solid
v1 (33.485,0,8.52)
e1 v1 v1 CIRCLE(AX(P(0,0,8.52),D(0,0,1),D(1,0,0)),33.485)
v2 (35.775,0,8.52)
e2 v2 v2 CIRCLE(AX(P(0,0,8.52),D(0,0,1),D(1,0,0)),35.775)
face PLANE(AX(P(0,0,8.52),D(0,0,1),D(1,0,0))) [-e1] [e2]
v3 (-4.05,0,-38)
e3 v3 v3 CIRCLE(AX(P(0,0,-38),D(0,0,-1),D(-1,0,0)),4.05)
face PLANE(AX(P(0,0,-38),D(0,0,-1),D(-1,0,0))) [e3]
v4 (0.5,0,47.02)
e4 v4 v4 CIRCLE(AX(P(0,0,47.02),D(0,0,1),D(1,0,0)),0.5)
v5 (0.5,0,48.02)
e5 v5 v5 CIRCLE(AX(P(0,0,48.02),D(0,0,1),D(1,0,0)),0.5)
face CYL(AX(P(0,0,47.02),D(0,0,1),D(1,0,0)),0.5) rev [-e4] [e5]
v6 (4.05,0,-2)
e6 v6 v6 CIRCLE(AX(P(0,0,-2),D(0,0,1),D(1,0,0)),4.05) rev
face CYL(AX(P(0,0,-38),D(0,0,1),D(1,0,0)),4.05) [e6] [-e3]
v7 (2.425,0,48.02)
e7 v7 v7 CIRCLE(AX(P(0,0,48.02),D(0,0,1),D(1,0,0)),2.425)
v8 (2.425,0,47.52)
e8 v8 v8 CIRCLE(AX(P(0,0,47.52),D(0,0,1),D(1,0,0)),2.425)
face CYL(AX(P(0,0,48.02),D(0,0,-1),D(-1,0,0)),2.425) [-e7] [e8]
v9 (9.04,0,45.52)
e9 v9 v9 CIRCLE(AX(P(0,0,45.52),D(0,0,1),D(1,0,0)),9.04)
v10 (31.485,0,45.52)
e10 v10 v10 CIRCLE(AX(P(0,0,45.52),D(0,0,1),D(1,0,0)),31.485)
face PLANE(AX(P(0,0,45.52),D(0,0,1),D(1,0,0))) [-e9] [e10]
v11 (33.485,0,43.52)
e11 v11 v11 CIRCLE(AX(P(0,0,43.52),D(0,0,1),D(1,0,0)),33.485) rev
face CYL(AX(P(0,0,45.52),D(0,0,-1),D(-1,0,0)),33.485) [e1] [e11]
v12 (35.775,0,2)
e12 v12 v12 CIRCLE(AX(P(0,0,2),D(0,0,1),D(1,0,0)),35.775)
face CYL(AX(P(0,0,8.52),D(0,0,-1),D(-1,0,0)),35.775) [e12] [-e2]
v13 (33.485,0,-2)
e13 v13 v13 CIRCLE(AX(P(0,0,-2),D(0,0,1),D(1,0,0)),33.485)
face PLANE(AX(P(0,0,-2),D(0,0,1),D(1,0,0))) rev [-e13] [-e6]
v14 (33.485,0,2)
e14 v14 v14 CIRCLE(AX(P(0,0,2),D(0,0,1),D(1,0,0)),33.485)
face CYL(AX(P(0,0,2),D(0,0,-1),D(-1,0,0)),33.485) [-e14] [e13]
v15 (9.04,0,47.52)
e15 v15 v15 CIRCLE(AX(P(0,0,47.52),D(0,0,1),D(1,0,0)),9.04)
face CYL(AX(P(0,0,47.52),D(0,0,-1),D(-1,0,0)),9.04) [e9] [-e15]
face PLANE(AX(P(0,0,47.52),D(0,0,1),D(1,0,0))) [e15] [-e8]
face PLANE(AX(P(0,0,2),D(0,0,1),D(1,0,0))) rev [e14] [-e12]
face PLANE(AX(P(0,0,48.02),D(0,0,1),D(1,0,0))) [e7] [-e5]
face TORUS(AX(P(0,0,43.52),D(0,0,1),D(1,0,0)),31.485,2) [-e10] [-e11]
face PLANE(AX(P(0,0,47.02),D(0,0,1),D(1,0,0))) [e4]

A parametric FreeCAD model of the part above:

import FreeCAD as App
import Part
import Sketcher
Q = App.Units.Quantity


def edges_at(feature, points):
    """Names of the edges that pass closest to the given points."""
    edges = feature.Shape.Edges
    near = lambda p: min(range(len(edges)), key=lambda i: edges[i].distToShape(Part.Vertex(*p))[0])
    return sorted({f"Edge{near(p) + 1}" for p in points})

doc = App.newDocument("Part")
body = doc.addObject("PartDesign::Body", "Body")

# Sketch on XY plane
sketch1 = body.newObject("Sketcher::SketchObject", "Sketch")
sketch1.AttachmentSupport = (doc.getObject("XY_Plane"), [""])
sketch1.MapMode = "FlatFace"
sketch1.addGeometry(Part.Circle(App.Vector(0, 0, 0), App.Vector(0, 0, 1), 33), False)
sketch1.addConstraint([
    Sketcher.Constraint("Coincident", 0, 3, -1, 1),
    Sketcher.Constraint("Diameter", 0, Q("66.97 mm")),
])
pad1 = body.newObject("PartDesign::Pad", "Pad")
pad1.Profile = sketch1
pad1.Length = 4
pad1.Midplane = True

# Sketch on XY plane
sketch2 = body.newObject("Sketcher::SketchObject", "Sketch001")
sketch2.AttachmentSupport = (doc.getObject("XY_Plane"), [""])
sketch2.MapMode = "FlatFace"
sketch2.AttachmentOffset = App.Placement(App.Vector(0, 0, 2), App.Rotation())
sketch2.addGeometry(Part.Circle(App.Vector(0, 0, 0), App.Vector(0, 0, 1), 36), False)
sketch2.addConstraint([
    Sketcher.Constraint("Coincident", 0, 3, -1, 1),
    Sketcher.Constraint("Diameter", 0, Q("71.55 mm")),
])
pad2 = body.newObject("PartDesign::Pad", "Pad001")
pad2.Profile = sketch2
pad2.Length = 6.52

# Sketch on XY plane
sketch3 = body.newObject("Sketcher::SketchObject", "Sketch002")
sketch3.AttachmentSupport = (doc.getObject("XY_Plane"), [""])
sketch3.MapMode = "FlatFace"
sketch3.AttachmentOffset = App.Placement(App.Vector(0, 0, 45.52), App.Rotation())
sketch3.addGeometry(Part.Circle(App.Vector(0, 0, 0), App.Vector(0, 0, 1), 33), False)
sketch3.addConstraint([
    Sketcher.Constraint("Coincident", 0, 3, -1, 1),
    Sketcher.Constraint("Diameter", 0, Q("66.97 mm")),
])
pad3 = body.newObject("PartDesign::Pad", "Pad002")
pad3.Profile = sketch3
pad3.Length = 37
pad3.Reversed = True

# Sketch on XY plane
sketch4 = body.newObject("Sketcher::SketchObject", "Sketch003")
sketch4.AttachmentSupport = (doc.getObject("XY_Plane"), [""])
sketch4.MapMode = "FlatFace"
sketch4.AttachmentOffset = App.Placement(App.Vector(0, 0, 45.52), App.Rotation())
sketch4.addGeometry(Part.Circle(App.Vector(0, 0, 0), App.Vector(0, 0, 1), 9), False)
sketch4.addConstraint([
    Sketcher.Constraint("Coincident", 0, 3, -1, 1),
    Sketcher.Constraint("Diameter", 0, Q("18.08 mm")),
])
pad4 = body.newObject("PartDesign::Pad", "Pad003")
pad4.Profile = sketch4
pad4.Length = 2

# Sketch on XY plane
sketch5 = body.newObject("Sketcher::SketchObject", "Sketch004")
sketch5.AttachmentSupport = (doc.getObject("XY_Plane"), [""])
sketch5.MapMode = "FlatFace"
sketch5.AttachmentOffset = App.Placement(App.Vector(0, 0, 47.52), App.Rotation())
sketch5.addGeometry(Part.Circle(App.Vector(0, 0, 0), App.Vector(0, 0, 1), 2.4), False)
sketch5.addConstraint([
    Sketcher.Constraint("Coincident", 0, 3, -1, 1),
    Sketcher.Constraint("Diameter", 0, Q("4.85 mm")),
])
pad5 = body.newObject("PartDesign::Pad", "Pad004")
pad5.Profile = sketch5
pad5.Length = 0.5

# Sketch on XY plane
sketch6 = body.newObject("Sketcher::SketchObject", "Sketch005")
sketch6.AttachmentSupport = (doc.getObject("XY_Plane"), [""])
sketch6.MapMode = "FlatFace"
sketch6.AttachmentOffset = App.Placement(App.Vector(0, 0, 48.02), App.Rotation())
sketch6.addGeometry(Part.Circle(App.Vector(0, 0, 0), App.Vector(0, 0, 1), 0.5), False)
sketch6.addConstraint([
    Sketcher.Constraint("Coincident", 0, 3, -1, 1),
    Sketcher.Constraint("Diameter", 0, Q("1 mm")),
])
pocket1 = body.newObject("PartDesign::Pocket", "Pocket")
pocket1.Profile = sketch6
pocket1.Length = 1

# Sketch on XY plane
sketch7 = body.newObject("Sketcher::SketchObject", "Sketch006")
sketch7.AttachmentSupport = (doc.getObject("XY_Plane"), [""])
sketch7.MapMode = "FlatFace"
sketch7.AttachmentOffset = App.Placement(App.Vector(0, 0, -2), App.Rotation())
sketch7.addGeometry(Part.Circle(App.Vector(0, 0, 0), App.Vector(0, 0, 1), 4), False)
sketch7.addConstraint([
    Sketcher.Constraint("Coincident", 0, 3, -1, 1),
    Sketcher.Constraint("Diameter", 0, Q("8.1 mm")),
])
pad6 = body.newObject("PartDesign::Pad", "Pad005")
pad6.Profile = sketch7
pad6.Length = 36
pad6.Reversed = True
doc.recompute()

fillet = body.newObject("PartDesign::Fillet", "Fillet")
fillet.Base = (pad6, edges_at(pad6, [(-33.485, 0, 45.52)]))
fillet.Radius = 2

doc.recompute()
